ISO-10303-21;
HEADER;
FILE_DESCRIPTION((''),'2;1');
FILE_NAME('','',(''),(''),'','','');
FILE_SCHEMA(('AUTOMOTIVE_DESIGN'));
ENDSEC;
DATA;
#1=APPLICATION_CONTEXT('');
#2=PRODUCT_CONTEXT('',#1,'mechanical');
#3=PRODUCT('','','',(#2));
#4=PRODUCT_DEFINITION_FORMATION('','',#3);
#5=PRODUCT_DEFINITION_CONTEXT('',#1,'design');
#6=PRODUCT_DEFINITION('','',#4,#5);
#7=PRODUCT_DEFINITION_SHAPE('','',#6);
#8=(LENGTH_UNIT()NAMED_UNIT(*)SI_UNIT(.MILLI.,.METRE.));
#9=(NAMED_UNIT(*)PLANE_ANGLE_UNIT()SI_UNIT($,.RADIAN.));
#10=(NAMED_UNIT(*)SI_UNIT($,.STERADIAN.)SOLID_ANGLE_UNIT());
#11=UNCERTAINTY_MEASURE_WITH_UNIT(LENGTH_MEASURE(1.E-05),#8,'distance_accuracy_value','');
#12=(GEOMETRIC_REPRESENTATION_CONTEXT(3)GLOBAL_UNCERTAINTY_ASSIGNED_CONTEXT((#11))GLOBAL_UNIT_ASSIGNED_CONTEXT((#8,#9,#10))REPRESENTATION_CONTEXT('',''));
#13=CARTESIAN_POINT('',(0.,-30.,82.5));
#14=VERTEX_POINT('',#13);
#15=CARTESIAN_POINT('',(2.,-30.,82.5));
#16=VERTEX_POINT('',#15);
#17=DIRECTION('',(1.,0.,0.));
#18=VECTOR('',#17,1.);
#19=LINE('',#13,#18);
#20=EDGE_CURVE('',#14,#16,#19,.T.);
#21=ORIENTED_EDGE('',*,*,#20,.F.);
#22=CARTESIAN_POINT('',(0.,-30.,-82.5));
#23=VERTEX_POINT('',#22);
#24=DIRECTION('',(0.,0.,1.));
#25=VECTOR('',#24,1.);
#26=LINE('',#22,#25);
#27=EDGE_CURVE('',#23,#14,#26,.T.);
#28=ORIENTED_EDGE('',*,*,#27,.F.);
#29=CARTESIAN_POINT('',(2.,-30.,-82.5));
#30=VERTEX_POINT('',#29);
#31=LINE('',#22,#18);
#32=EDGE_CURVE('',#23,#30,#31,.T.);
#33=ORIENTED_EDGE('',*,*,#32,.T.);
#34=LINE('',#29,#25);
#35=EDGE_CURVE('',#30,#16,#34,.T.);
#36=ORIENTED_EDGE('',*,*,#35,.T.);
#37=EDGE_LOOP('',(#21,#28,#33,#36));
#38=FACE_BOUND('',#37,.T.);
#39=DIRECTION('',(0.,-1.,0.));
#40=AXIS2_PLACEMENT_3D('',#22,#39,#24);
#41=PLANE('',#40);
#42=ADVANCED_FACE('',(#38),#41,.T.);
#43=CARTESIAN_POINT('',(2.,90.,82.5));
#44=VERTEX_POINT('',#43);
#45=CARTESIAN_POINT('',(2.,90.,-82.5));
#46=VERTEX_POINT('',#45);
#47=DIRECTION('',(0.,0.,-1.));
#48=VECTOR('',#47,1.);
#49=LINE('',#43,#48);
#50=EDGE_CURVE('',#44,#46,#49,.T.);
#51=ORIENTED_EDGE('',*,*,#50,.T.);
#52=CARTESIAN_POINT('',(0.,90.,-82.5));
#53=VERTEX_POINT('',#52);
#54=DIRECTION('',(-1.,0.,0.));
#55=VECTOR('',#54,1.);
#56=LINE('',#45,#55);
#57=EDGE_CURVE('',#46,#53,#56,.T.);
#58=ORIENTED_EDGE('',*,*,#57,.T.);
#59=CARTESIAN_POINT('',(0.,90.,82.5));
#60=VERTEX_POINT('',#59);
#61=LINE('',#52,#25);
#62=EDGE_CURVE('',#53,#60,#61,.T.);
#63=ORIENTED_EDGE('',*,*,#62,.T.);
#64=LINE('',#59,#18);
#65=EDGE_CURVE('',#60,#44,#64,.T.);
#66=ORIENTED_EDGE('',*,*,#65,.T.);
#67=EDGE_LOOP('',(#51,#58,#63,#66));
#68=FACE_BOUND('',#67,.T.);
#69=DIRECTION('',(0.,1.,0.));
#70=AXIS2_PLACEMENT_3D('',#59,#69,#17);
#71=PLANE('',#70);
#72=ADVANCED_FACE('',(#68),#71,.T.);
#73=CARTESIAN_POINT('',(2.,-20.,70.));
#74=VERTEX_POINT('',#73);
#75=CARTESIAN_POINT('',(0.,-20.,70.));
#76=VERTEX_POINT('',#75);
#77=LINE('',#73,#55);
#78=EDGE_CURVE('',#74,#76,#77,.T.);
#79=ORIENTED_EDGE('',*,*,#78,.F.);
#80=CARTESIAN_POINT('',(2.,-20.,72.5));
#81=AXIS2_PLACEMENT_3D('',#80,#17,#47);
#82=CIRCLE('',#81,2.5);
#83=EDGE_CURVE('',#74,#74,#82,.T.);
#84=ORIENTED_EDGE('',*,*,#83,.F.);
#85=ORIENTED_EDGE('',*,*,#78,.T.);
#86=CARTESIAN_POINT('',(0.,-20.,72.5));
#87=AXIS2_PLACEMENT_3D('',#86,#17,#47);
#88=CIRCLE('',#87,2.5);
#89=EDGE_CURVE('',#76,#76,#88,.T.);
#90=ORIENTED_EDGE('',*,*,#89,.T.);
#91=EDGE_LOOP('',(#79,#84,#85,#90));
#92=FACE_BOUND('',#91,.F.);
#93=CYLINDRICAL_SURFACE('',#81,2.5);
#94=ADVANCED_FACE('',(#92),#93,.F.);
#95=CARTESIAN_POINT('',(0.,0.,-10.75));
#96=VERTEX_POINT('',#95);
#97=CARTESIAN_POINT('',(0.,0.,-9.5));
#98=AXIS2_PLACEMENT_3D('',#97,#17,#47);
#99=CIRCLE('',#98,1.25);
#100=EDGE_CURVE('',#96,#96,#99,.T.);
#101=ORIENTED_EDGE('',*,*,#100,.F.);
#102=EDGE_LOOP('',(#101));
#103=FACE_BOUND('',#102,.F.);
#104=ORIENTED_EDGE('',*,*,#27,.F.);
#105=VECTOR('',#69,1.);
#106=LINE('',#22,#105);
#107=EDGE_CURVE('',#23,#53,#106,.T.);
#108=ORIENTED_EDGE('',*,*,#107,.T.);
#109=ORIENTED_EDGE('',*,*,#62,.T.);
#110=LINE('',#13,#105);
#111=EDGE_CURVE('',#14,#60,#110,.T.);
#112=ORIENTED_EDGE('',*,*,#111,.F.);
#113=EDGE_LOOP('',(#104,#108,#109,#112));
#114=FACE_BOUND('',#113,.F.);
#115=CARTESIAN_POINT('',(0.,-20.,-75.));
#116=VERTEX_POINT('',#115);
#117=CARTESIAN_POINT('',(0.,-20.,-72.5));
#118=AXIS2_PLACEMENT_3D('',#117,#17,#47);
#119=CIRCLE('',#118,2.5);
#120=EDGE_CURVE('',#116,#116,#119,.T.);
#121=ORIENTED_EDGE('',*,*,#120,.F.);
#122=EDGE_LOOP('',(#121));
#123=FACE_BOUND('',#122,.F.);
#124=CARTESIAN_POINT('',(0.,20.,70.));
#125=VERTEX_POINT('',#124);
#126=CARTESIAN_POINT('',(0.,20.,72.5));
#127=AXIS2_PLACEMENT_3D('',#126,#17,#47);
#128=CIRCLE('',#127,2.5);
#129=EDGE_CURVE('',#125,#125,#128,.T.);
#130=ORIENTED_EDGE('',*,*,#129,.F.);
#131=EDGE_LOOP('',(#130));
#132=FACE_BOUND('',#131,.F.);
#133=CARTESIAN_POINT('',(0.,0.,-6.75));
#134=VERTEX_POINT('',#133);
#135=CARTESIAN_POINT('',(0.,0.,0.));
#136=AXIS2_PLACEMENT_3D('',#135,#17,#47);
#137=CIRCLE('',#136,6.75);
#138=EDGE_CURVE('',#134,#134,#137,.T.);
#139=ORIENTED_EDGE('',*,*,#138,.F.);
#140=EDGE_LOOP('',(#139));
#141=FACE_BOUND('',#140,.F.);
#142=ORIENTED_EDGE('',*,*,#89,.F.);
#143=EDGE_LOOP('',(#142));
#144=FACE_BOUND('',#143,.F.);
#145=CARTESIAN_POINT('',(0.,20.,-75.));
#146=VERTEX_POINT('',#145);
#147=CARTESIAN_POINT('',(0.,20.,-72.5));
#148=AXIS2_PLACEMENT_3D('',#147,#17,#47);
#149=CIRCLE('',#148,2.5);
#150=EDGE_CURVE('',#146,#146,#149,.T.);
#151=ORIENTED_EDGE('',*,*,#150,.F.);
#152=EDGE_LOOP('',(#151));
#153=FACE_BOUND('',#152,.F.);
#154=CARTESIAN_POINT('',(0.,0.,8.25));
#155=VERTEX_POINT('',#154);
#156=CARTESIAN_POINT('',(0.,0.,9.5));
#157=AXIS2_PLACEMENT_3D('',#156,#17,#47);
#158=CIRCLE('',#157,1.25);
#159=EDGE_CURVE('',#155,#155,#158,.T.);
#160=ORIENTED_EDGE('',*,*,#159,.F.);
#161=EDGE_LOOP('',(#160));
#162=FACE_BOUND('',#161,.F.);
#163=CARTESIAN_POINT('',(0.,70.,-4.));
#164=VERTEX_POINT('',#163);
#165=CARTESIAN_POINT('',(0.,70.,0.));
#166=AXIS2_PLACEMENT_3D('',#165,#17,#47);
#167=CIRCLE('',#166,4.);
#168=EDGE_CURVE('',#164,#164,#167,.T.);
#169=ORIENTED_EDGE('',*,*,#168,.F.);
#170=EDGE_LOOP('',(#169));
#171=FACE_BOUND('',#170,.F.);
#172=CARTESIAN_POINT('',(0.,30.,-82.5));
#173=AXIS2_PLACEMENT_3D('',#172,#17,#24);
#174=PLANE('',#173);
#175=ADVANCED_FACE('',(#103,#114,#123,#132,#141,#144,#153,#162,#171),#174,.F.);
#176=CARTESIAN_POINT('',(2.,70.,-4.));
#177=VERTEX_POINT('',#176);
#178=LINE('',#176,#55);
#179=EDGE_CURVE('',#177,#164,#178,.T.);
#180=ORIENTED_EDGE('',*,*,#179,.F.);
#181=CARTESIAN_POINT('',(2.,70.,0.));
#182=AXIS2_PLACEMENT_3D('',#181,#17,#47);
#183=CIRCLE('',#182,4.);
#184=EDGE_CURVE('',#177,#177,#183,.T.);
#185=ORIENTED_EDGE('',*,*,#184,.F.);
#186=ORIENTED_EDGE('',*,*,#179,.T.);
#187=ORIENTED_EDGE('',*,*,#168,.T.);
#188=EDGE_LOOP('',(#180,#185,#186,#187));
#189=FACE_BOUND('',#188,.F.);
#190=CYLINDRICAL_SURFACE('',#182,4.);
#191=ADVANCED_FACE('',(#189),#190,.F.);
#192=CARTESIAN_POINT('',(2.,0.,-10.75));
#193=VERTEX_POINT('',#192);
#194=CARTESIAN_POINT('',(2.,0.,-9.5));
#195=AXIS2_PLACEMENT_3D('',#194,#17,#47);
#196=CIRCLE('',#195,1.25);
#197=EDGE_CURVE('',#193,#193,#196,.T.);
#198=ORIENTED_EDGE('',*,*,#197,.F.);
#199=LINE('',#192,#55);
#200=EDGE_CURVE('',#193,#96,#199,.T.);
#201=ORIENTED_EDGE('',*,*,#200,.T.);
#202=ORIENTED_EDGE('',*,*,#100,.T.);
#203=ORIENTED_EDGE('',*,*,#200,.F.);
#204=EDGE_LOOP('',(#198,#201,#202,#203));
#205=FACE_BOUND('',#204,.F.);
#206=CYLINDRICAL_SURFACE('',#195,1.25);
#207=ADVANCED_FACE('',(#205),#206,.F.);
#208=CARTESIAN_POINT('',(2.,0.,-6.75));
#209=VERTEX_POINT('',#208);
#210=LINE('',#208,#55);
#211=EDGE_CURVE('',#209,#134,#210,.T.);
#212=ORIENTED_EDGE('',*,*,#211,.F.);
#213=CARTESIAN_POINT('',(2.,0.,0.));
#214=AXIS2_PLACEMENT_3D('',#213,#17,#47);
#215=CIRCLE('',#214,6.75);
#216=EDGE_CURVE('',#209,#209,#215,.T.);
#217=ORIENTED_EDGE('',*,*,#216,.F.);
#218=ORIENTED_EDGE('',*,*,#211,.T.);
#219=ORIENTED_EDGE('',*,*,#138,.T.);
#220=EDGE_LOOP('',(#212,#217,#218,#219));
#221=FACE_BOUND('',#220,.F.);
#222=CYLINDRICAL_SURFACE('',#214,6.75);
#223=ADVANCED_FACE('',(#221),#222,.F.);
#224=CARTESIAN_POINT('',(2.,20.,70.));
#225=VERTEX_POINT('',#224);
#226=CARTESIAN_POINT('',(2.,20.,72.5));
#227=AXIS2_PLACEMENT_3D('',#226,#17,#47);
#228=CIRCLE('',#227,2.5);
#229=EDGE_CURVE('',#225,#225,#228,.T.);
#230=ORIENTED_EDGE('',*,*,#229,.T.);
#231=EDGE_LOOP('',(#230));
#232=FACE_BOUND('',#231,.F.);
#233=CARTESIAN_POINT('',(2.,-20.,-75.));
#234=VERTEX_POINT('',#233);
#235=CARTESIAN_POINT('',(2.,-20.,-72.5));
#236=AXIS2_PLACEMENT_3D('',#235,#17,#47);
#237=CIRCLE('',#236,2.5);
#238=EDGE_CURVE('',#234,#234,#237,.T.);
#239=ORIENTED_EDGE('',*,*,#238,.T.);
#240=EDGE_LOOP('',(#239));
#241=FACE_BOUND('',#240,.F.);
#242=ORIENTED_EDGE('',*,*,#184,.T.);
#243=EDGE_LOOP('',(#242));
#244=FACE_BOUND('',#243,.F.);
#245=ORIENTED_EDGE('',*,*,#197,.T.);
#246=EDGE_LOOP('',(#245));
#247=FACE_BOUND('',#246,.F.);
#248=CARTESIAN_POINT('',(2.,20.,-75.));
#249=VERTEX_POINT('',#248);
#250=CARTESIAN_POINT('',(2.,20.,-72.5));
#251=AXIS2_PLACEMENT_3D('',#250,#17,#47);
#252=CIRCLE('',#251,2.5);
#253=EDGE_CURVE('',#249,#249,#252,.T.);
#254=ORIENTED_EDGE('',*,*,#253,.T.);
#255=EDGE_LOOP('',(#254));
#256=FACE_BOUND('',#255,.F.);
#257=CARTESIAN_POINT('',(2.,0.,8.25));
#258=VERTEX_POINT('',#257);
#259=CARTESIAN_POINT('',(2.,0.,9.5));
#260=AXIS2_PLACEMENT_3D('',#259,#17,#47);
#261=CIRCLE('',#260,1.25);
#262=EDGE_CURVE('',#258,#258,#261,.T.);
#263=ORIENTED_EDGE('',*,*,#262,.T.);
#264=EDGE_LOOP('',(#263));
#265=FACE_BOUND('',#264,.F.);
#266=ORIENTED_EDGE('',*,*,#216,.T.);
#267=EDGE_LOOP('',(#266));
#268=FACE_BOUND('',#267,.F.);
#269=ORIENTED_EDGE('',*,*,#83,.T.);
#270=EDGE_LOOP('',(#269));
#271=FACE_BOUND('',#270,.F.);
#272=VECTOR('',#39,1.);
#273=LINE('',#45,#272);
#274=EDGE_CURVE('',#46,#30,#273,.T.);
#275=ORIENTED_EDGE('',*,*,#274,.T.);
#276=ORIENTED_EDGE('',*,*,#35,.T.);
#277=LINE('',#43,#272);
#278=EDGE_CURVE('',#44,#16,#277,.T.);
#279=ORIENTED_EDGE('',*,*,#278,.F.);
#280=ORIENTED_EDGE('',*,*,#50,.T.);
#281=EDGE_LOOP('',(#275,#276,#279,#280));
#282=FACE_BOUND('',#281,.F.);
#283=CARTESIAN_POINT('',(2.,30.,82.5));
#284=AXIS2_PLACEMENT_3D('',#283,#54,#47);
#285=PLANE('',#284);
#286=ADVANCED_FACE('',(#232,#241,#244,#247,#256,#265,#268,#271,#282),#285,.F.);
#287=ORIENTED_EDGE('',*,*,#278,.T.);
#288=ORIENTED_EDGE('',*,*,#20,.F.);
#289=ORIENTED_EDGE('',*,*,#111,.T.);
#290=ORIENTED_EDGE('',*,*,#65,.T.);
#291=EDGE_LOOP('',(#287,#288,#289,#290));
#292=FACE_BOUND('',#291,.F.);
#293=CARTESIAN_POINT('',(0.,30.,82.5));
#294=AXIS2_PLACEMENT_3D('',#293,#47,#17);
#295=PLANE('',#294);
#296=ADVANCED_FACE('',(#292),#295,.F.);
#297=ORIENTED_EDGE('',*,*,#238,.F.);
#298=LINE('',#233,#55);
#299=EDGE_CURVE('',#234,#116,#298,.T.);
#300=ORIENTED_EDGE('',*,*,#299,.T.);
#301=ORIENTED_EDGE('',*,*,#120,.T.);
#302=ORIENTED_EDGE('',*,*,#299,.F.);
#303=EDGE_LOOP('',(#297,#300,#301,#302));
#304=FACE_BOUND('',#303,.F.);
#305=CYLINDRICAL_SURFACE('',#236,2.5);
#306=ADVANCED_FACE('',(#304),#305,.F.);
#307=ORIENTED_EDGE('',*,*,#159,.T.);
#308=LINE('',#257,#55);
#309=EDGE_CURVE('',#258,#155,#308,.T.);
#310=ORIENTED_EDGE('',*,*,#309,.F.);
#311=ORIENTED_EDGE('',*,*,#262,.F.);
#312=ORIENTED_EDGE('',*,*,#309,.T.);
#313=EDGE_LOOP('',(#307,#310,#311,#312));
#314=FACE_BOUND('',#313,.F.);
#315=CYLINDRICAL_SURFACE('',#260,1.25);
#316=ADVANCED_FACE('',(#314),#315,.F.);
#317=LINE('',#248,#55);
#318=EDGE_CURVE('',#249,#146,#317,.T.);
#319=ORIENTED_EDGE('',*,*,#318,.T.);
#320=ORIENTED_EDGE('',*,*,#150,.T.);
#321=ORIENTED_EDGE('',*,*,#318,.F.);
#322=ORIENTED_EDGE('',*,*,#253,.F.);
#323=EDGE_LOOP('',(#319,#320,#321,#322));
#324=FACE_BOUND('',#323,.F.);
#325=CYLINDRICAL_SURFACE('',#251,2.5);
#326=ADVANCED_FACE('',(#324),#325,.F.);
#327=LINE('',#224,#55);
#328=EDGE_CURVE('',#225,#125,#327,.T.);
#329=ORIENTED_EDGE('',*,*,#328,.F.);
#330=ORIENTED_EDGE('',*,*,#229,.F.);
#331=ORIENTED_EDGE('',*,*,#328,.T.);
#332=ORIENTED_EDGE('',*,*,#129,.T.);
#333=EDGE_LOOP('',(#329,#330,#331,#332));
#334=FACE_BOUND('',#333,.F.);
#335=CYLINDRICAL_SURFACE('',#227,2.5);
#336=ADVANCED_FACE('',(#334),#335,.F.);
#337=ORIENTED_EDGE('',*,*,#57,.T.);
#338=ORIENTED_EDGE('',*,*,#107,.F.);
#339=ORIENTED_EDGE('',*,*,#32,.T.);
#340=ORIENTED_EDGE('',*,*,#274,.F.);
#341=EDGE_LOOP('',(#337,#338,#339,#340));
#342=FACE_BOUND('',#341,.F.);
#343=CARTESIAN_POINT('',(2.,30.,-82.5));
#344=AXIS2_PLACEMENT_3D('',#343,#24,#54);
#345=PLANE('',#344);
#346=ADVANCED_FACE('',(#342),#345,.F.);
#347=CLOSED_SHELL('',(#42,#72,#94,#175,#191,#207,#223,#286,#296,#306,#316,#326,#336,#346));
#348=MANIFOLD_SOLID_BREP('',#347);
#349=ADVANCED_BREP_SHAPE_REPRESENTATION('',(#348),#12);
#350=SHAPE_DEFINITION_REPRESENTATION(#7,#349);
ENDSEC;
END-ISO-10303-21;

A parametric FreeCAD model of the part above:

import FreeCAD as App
import Part
import Sketcher

V = App.Vector
Q = App.Units.Quantity

doc = App.newDocument("Part")
body = doc.addObject("PartDesign::Body", "Body")

# Sketch on YZ plane
sketch1 = body.newObject("Sketcher::SketchObject", "Sketch")
sketch1.AttachmentSupport = (doc.getObject("YZ_Plane"), [""])
sketch1.MapMode = "FlatFace"
sketch1.addGeometry([
    Part.LineSegment(V(30, 82, 0), V(-30, 82, 0)),
    Part.LineSegment(V(-30, 82, 0), V(-30, -82, 0)),
    Part.LineSegment(V(-30, -82, 0), V(30, -82, 0)),
    Part.LineSegment(V(30, -82, 0), V(30, 82, 0)),
], False)
sketch1.addConstraint([
    Sketcher.Constraint("Coincident", 0, 2, 1, 1),
    Sketcher.Constraint("Coincident", 1, 2, 2, 1),
    Sketcher.Constraint("Coincident", 2, 2, 3, 1),
    Sketcher.Constraint("Coincident", 3, 2, 0, 1),
    Sketcher.Constraint("Horizontal", 0),
    Sketcher.Constraint("Vertical", 1),
    Sketcher.Constraint("Horizontal", 2),
    Sketcher.Constraint("Vertical", 3),
    Sketcher.Constraint("Symmetric", 0, 2, 2, 2, -1, 1),
    Sketcher.Constraint("DistanceX", 0, 2, 0, 1, Q("60 mm")),
    Sketcher.Constraint("DistanceY", 1, 2, 1, 1, Q("165 mm")),
])
pad1 = body.newObject("PartDesign::Pad", "Pad")
pad1.Profile = sketch1
pad1.Length = 2

# Sketch on YZ plane
sketch2 = body.newObject("Sketcher::SketchObject", "Sketch001")
sketch2.AttachmentSupport = (doc.getObject("YZ_Plane"), [""])
sketch2.MapMode = "FlatFace"
sketch2.AttachmentOffset = App.Placement(V(0, 0, 2), App.Rotation())
sketch2.addGeometry([
    Part.Circle(V(0, 0, 0), V(0, 0, 1), 6.8),  # 0
    Part.Circle(V(0, -9.5, 0), V(0, 0, 1), 1.2),  # 1
    Part.Circle(V(0, 9.5, 0), V(0, 0, 1), 1.2),  # 2
    Part.Circle(V(20, 72.5, 0), V(0, 0, 1), 2.5),  # 3
    Part.Circle(V(-20, 72.5, 0), V(0, 0, 1), 2.5),  # 4
    Part.Circle(V(20, -72.5, 0), V(0, 0, 1), 2.5),  # 5
    Part.Circle(V(-20, -72.5, 0), V(0, 0, 1), 2.5),  # 6
], False)
sketch2.addConstraint([
    Sketcher.Constraint("Coincident", 0, 3, -1, 1),
    Sketcher.Constraint("Equal", 1, 2),
    Sketcher.Constraint("Equal", 3, 4),
    Sketcher.Constraint("Equal", 4, 5),
    Sketcher.Constraint("Equal", 5, 6),
    Sketcher.Constraint("Symmetric", 1, 3, 2, 3, -1, 1),
    Sketcher.Constraint("Symmetric", 4, 3, 5, 3, -1, 1),
    Sketcher.Constraint("Symmetric", 3, 3, 6, 3, -1, 1),
    Sketcher.Constraint("Symmetric", 3, 3, 4, 3, -2),
    Sketcher.Constraint("PointOnObject", 1, 3, -2),
    Sketcher.Constraint("Diameter", 3, Q("5 mm")),
    Sketcher.Constraint("Diameter", 0, Q("13.5 mm")),
    Sketcher.Constraint("Diameter", 1, Q("2.5 mm")),
    Sketcher.Constraint("DistanceY", 1, 3, 2, 3, Q("19 mm")),
    Sketcher.Constraint("DistanceY", 5, 3, 3, 3, Q("145 mm")),
    Sketcher.Constraint("DistanceX", -1, 1, 3, 3, Q("20 mm")),
])
pocket1 = body.newObject("PartDesign::Pocket", "Pocket")
pocket1.Profile = sketch2
pocket1.Length = 5

# Sketch on XZ plane
sketch3 = body.newObject("Sketcher::SketchObject", "Sketch002")
sketch3.AttachmentSupport = (doc.getObject("XZ_Plane"), [""])
sketch3.MapMode = "FlatFace"
sketch3.AttachmentOffset = App.Placement(V(0, 0, -30), App.Rotation())
sketch3.addGeometry([
    Part.LineSegment(V(2, -82.5, 0), V(0, -82.5, 0)),
    Part.LineSegment(V(0, -82.5, 0), V(0, 82.5, 0)),
    Part.LineSegment(V(0, 82.5, 0), V(2, 82.5, 0)),
    Part.LineSegment(V(2, 82.5, 0), V(2, -82.5, 0)),
], False)
sketch3.addConstraint([
    Sketcher.Constraint("Coincident", 0, 2, 1, 1),
    Sketcher.Constraint("Coincident", 1, 2, 2, 1),
    Sketcher.Constraint("Coincident", 2, 2, 3, 1),
    Sketcher.Constraint("Coincident", 3, 2, 0, 1),
    Sketcher.Constraint("Horizontal", 0),
    Sketcher.Constraint("Vertical", 1),
    Sketcher.Constraint("Horizontal", 2),
    Sketcher.Constraint("Vertical", 3),
    Sketcher.Constraint("Symmetric", 0, 2, 1, 2, -1, 1),
    Sketcher.Constraint("DistanceX", 0, 2, 0, 1, Q("2 mm")),
    Sketcher.Constraint("DistanceY", 1, 1, 1, 2, Q("165 mm")),
])
pad2 = body.newObject("PartDesign::Pad", "Pad001")
pad2.Profile = sketch3
pad2.Length = 60
pad2.Reversed = True

# Sketch on YZ plane
sketch4 = body.newObject("Sketcher::SketchObject", "Sketch003")
sketch4.AttachmentSupport = (doc.getObject("YZ_Plane"), [""])
sketch4.MapMode = "FlatFace"
sketch4.AttachmentOffset = App.Placement(V(0, 0, 2), App.Rotation())
sketch4.addGeometry(Part.Circle(V(70, 0, 0), V(0, 0, 1), 4), False)
sketch4.addConstraint([
    Sketcher.Constraint("PointOnObject", 0, 3, -1),
    Sketcher.Constraint("Diameter", 0, Q("8 mm")),
    Sketcher.Constraint("DistanceX", -1, 1, 0, 3, Q("70 mm")),
])
pocket2 = body.newObject("PartDesign::Pocket", "Pocket001")
pocket2.Profile = sketch4
pocket2.Length = 45

doc.recompute()
